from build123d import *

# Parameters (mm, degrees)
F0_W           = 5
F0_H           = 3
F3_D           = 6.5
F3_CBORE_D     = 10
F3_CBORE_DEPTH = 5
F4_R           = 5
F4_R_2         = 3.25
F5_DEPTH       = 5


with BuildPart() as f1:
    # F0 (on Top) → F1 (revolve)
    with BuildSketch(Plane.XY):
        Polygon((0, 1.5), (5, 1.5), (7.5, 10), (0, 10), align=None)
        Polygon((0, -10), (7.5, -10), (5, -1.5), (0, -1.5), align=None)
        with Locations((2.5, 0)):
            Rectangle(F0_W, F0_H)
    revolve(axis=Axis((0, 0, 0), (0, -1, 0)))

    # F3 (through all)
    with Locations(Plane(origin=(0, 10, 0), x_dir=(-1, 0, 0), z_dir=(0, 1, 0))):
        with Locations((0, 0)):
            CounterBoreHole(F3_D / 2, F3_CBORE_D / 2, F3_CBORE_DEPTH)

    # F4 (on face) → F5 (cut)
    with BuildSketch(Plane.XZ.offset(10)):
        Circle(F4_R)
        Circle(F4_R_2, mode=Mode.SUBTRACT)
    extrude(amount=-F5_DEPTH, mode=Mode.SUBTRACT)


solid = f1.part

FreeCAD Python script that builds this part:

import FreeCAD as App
import Part
import Sketcher

V = App.Vector
Q = App.Units.Quantity

doc = App.newDocument("Part")
params = doc.addObject("Spreadsheet::Sheet", "Params")
for row, (alias, value) in enumerate([
    ("sketch1_height", "20 mm"),
    ("sketch1_height2", "3 mm"),
    ("sketch1_width", "7.5 mm"),
    ("revolution_angle", "360 deg"),
    ("sketch2_diameter", "6.5 mm"),
    ("hole_diameter", "6.5 mm"),
    ("hole_cbore_diameter", "10 mm"),
    ("hole_cbore_depth", "5 mm"),
    ("sketch3_diameter", "10 mm"),
    ("sketch3_diameter2", "6.5 mm"),
    ("pocket1_length", "5 mm"),
], start=1):
    params.set(f"A{row}", alias)
    params.set(f"B{row}", "=" + value)
    params.setAlias(f"B{row}", alias)

body = doc.addObject("PartDesign::Body", "Body")

sketch1 = body.newObject("Sketcher::SketchObject", "Sketch")
sketch1.AttachmentSupport = (doc.getObject("XY_Plane"), [""])
sketch1.MapMode = "FlatFace"
sketch1.addGeometry(Part.LineSegment(V(5, 1.5, 0), V(7.5, 10, 0)), False)
sketch1.addGeometry(Part.LineSegment(V(7.5, 10, 0), V(0, 10, 0)), False)
sketch1.addGeometry(Part.LineSegment(V(0, 10, 0), V(0, -10, 0)), False)
sketch1.addGeometry(Part.LineSegment(V(0, -10, 0), V(7.5, -10, 0)), False)
sketch1.addGeometry(Part.LineSegment(V(7.5, -10, 0), V(5, -1.5, 0)), False)
sketch1.addGeometry(Part.LineSegment(V(5, -1.5, 0), V(5, 1.5, 0)), False)
sketch1.addConstraint(Sketcher.Constraint("Coincident", 0, 2, 1, 1))
sketch1.addConstraint(Sketcher.Constraint("Coincident", 1, 2, 2, 1))
sketch1.addConstraint(Sketcher.Constraint("Coincident", 2, 2, 3, 1))
sketch1.addConstraint(Sketcher.Constraint("Coincident", 3, 2, 4, 1))
sketch1.addConstraint(Sketcher.Constraint("Coincident", 4, 2, 5, 1))
sketch1.addConstraint(Sketcher.Constraint("Coincident", 5, 2, 0, 1))
sketch1.addConstraint(Sketcher.Constraint("Horizontal", 1))
sketch1.addConstraint(Sketcher.Constraint("Vertical", 2))
sketch1.addConstraint(Sketcher.Constraint("Horizontal", 3))
sketch1.addConstraint(Sketcher.Constraint("Vertical", 5))
sketch1.addConstraint(Sketcher.Constraint("Symmetric", 1, 2, 2, 2, -1, 1))
sketch1.addConstraint(Sketcher.Constraint("Vertical", 0, 2, 3, 2))
sketch1.addConstraint(Sketcher.Constraint("Equal", 0, 4))
sketch1.addConstraint(Sketcher.Constraint("DistanceY", 2, 2, 2, 1, Q("20 mm")))
sketch1.addConstraint(Sketcher.Constraint("DistanceY", 5, 1, 5, 2, Q("3 mm")))
sketch1.addConstraint(Sketcher.Constraint("DistanceX", 1, 2, 1, 1, Q("7.5 mm")))
sketch1.addConstraint(Sketcher.Constraint("DistanceX", -1, 1, 4, 2, Q("5 mm")))
sketch1.setExpression("Constraints[13]", "Params.sketch1_height")
sketch1.setExpression("Constraints[14]", "Params.sketch1_height2")
sketch1.setExpression("Constraints[15]", "Params.sketch1_width")
revolution = body.newObject("PartDesign::Revolution", "Revolution")
revolution.Profile = sketch1
revolution.ReferenceAxis = (sketch1, ["V_Axis"])
revolution.setExpression("Angle", "Params.revolution_angle")

sketch2 = body.newObject("Sketcher::SketchObject", "Sketch001")
sketch2.AttachmentSupport = (doc.getObject("XZ_Plane"), [""])
sketch2.MapMode = "FlatFace"
sketch2.AttachmentOffset = App.Placement(V(0, 0, -10), App.Rotation())
sketch2.addGeometry(Part.Circle(V(0, 0, 0), V(0, 0, 1), 3.2), False)
sketch2.addConstraint(Sketcher.Constraint("Coincident", 0, 3, -1, 1))
sketch2.addConstraint(Sketcher.Constraint("Diameter", 0, Q("6.5 mm")))
sketch2.setExpression("Constraints[1]", "Params.sketch2_diameter")
doc.recompute()
hole = body.newObject("PartDesign::Hole", "Hole")
hole.Profile = sketch2
hole.ThreadType = "None"
hole.setExpression("Diameter", "Params.hole_diameter")
hole.DepthType = "ThroughAll"
hole.HoleCutType = "Counterbore"
hole.setExpression("HoleCutDiameter", "Params.hole_cbore_diameter")
hole.setExpression("HoleCutDepth", "Params.hole_cbore_depth")
hole.Reversed = True

sketch3 = body.newObject("Sketcher::SketchObject", "Sketch002")
sketch3.AttachmentSupport = (doc.getObject("XZ_Plane"), [""])
sketch3.MapMode = "FlatFace"
sketch3.AttachmentOffset = App.Placement(V(0, 0, 10), App.Rotation())
sketch3.addGeometry(Part.Circle(V(0, 0, 0), V(0, 0, 1), 5), False)
sketch3.addGeometry(Part.Circle(V(0, 0, 0), V(0, 0, 1), 3.2), False)
sketch3.addConstraint(Sketcher.Constraint("Coincident", 0, 3, -1, 1))
sketch3.addConstraint(Sketcher.Constraint("Coincident", 1, 3, -1, 1))
sketch3.addConstraint(Sketcher.Constraint("Diameter", 0, Q("10 mm")))
sketch3.addConstraint(Sketcher.Constraint("Diameter", 1, Q("6.5 mm")))
sketch3.setExpression("Constraints[2]", "Params.sketch3_diameter")
sketch3.setExpression("Constraints[3]", "Params.sketch3_diameter2")
pocket1 = body.newObject("PartDesign::Pocket", "Pocket")
pocket1.Profile = sketch3
pocket1.setExpression("Length", "Params.pocket1_length")

doc.recompute()
